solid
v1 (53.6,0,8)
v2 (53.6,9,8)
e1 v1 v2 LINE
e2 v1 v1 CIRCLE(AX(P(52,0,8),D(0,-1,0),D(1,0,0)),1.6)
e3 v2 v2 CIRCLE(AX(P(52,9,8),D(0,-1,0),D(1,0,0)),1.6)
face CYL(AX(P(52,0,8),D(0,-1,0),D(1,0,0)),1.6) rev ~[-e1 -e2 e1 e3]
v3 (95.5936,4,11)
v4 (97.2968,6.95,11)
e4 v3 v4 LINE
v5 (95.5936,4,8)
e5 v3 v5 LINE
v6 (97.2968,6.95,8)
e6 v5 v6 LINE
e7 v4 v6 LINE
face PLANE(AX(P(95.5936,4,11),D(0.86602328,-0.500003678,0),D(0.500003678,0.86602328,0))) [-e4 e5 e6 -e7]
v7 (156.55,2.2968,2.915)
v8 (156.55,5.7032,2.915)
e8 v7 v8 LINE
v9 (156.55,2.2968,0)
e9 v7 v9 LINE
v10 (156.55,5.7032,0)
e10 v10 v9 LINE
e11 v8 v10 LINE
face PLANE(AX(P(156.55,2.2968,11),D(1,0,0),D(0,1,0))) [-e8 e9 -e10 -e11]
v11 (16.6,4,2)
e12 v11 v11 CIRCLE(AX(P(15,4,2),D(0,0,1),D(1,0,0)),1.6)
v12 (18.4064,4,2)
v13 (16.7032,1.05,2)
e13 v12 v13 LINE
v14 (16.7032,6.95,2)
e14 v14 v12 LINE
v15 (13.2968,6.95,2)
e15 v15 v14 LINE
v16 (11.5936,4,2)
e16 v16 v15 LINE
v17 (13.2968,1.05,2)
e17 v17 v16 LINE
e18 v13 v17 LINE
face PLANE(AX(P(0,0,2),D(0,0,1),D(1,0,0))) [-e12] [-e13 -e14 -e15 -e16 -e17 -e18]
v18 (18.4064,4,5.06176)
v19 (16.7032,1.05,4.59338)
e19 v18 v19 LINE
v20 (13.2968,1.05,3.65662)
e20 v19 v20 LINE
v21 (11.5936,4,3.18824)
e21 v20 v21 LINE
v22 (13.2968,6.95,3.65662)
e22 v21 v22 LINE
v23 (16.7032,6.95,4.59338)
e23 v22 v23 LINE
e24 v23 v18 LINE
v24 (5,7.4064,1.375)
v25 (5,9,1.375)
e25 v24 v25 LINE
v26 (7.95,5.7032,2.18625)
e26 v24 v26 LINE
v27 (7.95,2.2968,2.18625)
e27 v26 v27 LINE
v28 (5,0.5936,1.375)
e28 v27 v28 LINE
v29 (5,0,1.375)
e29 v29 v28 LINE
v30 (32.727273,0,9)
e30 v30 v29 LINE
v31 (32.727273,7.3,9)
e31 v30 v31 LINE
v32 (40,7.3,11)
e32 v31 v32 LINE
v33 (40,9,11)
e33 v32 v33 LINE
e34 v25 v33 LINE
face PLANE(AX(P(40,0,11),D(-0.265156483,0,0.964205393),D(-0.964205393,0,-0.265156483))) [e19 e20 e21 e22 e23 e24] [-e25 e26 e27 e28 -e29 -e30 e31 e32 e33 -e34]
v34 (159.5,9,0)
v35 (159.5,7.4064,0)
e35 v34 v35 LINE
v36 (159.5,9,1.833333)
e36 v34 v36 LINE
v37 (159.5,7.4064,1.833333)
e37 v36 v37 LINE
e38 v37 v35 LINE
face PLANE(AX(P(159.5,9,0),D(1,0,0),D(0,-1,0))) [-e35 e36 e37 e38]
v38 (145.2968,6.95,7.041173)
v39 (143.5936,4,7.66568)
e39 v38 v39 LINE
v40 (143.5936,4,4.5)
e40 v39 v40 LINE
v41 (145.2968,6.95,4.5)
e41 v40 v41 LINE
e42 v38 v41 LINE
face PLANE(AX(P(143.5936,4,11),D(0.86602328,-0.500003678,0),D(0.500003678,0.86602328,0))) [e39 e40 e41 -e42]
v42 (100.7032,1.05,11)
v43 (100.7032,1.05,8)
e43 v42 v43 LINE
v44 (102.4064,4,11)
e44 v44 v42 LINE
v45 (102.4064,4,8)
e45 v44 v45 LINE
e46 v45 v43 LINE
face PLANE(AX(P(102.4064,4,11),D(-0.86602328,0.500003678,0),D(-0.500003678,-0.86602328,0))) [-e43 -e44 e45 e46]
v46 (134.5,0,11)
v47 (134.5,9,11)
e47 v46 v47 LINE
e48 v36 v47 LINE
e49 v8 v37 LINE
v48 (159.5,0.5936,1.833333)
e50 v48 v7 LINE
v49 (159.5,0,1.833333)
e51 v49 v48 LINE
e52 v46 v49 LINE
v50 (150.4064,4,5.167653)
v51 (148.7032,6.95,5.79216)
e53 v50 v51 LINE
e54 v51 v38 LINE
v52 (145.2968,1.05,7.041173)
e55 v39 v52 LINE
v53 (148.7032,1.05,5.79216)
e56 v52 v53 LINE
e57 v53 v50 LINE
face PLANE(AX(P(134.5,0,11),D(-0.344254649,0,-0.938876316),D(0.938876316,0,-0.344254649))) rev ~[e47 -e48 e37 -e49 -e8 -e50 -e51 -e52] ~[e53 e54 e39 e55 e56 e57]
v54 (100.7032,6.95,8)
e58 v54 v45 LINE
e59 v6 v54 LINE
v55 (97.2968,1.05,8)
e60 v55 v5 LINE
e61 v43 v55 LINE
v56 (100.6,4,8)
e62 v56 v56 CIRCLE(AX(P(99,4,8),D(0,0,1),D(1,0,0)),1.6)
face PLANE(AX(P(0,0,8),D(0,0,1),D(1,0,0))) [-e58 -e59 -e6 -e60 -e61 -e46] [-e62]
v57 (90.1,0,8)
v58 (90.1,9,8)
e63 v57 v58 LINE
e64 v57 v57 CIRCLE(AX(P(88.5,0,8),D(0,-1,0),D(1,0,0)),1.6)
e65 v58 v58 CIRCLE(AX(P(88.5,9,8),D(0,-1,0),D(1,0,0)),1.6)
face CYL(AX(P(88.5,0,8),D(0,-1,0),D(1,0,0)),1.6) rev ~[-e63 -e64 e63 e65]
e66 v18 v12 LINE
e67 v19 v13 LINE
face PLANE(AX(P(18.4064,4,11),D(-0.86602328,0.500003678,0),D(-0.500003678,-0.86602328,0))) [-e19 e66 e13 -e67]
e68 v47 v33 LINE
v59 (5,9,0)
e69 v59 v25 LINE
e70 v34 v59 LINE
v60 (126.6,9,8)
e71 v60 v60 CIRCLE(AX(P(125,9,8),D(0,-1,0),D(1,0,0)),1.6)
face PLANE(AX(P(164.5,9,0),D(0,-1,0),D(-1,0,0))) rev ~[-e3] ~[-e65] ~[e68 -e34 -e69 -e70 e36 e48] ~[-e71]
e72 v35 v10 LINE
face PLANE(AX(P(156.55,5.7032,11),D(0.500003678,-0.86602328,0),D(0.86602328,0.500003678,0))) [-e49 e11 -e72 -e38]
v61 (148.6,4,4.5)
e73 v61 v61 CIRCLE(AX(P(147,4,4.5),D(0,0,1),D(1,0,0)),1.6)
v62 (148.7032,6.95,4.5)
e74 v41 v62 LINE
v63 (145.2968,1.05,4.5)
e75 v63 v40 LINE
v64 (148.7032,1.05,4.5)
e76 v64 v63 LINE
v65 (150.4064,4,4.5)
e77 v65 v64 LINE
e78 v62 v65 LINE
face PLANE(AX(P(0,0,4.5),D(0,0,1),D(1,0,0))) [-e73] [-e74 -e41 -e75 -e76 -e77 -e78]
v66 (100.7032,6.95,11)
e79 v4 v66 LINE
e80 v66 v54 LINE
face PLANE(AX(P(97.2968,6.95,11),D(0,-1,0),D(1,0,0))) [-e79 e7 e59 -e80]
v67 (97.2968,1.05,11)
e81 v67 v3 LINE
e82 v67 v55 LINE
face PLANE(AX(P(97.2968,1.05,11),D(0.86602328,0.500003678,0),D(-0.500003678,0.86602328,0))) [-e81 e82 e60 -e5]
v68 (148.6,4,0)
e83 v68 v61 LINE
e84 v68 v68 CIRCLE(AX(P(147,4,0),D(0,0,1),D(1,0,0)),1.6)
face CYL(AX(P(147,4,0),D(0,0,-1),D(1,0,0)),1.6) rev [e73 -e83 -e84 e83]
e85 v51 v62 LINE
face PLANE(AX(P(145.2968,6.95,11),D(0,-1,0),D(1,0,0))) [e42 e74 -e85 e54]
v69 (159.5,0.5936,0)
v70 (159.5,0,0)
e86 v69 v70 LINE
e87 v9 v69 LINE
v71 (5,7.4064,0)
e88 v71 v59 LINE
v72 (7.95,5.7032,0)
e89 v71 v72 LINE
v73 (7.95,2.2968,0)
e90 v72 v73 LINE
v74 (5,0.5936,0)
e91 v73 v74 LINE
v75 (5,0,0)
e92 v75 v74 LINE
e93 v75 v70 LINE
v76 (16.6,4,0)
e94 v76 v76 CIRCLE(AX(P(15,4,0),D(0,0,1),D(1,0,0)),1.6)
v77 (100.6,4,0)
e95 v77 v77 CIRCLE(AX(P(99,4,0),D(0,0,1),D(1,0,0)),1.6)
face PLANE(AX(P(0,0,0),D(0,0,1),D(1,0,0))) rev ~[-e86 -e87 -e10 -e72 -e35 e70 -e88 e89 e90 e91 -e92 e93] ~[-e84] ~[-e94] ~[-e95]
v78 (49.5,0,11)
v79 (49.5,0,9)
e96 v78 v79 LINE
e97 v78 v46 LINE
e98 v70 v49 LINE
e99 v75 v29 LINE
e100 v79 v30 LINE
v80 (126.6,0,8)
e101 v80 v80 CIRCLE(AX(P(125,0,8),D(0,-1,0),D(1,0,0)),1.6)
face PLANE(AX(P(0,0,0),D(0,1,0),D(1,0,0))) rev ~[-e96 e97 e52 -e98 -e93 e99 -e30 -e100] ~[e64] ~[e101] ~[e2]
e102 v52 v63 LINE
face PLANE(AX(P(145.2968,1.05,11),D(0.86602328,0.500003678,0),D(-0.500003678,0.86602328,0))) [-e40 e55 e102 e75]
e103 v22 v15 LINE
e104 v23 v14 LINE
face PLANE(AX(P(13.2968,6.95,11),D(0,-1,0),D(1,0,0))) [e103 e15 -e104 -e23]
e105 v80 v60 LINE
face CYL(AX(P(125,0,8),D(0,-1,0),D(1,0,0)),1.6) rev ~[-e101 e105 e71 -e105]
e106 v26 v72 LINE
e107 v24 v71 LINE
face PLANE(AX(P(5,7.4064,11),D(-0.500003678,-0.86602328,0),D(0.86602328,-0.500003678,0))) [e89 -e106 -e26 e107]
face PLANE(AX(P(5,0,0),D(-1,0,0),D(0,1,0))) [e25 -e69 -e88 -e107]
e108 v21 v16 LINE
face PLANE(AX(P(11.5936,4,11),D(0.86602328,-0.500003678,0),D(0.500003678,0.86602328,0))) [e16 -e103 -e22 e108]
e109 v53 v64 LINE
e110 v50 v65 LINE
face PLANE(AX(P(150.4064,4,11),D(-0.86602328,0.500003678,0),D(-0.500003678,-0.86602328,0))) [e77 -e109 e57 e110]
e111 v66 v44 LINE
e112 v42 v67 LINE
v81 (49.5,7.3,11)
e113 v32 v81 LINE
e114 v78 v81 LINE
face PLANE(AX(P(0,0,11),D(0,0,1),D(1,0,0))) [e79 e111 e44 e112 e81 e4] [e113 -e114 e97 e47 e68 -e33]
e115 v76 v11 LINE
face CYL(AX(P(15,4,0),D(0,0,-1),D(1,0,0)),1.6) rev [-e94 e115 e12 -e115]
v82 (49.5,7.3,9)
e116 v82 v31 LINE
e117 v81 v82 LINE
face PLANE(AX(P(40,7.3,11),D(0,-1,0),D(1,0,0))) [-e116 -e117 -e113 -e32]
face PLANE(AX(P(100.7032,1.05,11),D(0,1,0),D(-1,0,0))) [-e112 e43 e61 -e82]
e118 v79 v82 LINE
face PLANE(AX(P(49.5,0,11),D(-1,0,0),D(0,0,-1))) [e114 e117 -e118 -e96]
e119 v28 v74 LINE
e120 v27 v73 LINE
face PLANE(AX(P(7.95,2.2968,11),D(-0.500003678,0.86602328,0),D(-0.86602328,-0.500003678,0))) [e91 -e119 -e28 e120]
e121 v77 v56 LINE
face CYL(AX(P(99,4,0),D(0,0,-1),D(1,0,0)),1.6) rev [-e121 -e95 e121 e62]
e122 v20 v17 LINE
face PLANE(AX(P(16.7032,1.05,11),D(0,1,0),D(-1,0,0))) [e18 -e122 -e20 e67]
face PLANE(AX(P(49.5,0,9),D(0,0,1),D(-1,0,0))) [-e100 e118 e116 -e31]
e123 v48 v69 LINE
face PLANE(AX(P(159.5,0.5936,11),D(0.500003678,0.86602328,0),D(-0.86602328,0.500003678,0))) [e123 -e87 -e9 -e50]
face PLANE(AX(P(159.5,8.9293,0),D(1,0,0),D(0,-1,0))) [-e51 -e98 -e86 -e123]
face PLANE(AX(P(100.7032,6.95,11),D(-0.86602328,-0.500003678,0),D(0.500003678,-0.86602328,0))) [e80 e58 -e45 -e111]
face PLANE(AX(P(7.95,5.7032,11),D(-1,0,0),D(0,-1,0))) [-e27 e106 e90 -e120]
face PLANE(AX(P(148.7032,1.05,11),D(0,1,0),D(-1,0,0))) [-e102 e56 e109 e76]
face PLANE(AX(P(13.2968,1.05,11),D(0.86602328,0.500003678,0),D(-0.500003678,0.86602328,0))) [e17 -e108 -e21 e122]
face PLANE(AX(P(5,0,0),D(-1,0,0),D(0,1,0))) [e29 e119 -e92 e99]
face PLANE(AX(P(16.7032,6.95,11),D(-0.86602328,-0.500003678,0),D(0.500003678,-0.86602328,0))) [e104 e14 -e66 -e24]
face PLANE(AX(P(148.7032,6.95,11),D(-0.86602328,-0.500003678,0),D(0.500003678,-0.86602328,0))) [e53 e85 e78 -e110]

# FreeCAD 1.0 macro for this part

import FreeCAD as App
import Part
import Sketcher
Q = App.Units.Quantity


def add_polygon(sketch, points):
    """Adds a closed chain of lines whose ends are joined by coincident constraints."""
    first, n = sketch.GeometryCount, len(points)
    for a, b in zip(points, points[1:] + points[:1]):
        sketch.addGeometry(Part.LineSegment(App.Vector(*a, 0), App.Vector(*b, 0)), False)
    for i in range(n):
        sketch.addConstraint(Sketcher.Constraint("Coincident", first + i, 2, first + (i + 1) % n, 1))

doc = App.newDocument("Part")
body = doc.addObject("PartDesign::Body", "Body")

# Sketch on XY plane
sketch1 = body.newObject("Sketcher::SketchObject", "Sketch")
sketch1.AttachmentSupport = (doc.getObject("XY_Plane"), [""])
sketch1.MapMode = "FlatFace"
add_polygon(sketch1, [(0, 9), (0, 0), (164.5, 0), (164.5, 9)])  # lines 0-3
sketch1.addGeometry(Part.Circle(App.Vector(5, 4, 0), App.Vector(0, 0, 1), 1.6), False)  # 4
sketch1.addGeometry(Part.Circle(App.Vector(15, 4, 0), App.Vector(0, 0, 1), 1.6), False)  # 5
sketch1.addGeometry(Part.Circle(App.Vector(99, 4, 0), App.Vector(0, 0, 1), 1.6), False)  # 6
sketch1.addGeometry(Part.Circle(App.Vector(147, 4, 0), App.Vector(0, 0, 1), 1.6), False)  # 7
sketch1.addGeometry(Part.Circle(App.Vector(159.5, 4, 0), App.Vector(0, 0, 1), 1.6), False)  # 8
sketch1.addConstraint([
    Sketcher.Constraint("Vertical", 0),
    Sketcher.Constraint("Horizontal", 1),
    Sketcher.Constraint("Vertical", 2),
    Sketcher.Constraint("Horizontal", 3),
    Sketcher.Constraint("Coincident", 0, 2, -1, 1),
    Sketcher.Constraint("Equal", 4, 5),
    Sketcher.Constraint("Equal", 5, 6),
    Sketcher.Constraint("Equal", 6, 7),
    Sketcher.Constraint("Equal", 7, 8),
    Sketcher.Constraint("Horizontal", 4, 3, 5, 3),
    Sketcher.Constraint("Horizontal", 5, 3, 6, 3),
    Sketcher.Constraint("Horizontal", 6, 3, 7, 3),
    Sketcher.Constraint("Horizontal", 7, 3, 8, 3),
    Sketcher.Constraint("Diameter", 4, Q("3.2 mm")),
    Sketcher.Constraint("DistanceY", 0, 2, 0, 1, Q("9 mm")),
    Sketcher.Constraint("DistanceX", -1, 1, 4, 3, Q("5 mm")),
    Sketcher.Constraint("DistanceY", -1, 1, 4, 3, Q("4 mm")),
    Sketcher.Constraint("DistanceX", -1, 1, 5, 3, Q("15 mm")),
    Sketcher.Constraint("DistanceX", 6, 3, 7, 3, Q("48 mm")),
    Sketcher.Constraint("DistanceX", 8, 3, 1, 2, Q("5 mm")),
    Sketcher.Constraint("DistanceX", 7, 3, 8, 3, Q("12.5 mm")),
    Sketcher.Constraint("DistanceX", 1, 1, 1, 2, Q("164.5 mm")),
])
pad1 = body.newObject("PartDesign::Pad", "Pad")
pad1.Profile = sketch1
pad1.Length = 11

# Sketch on XZ plane
sketch2 = body.newObject("Sketcher::SketchObject", "Sketch001")
sketch2.AttachmentSupport = (doc.getObject("XZ_Plane"), [""])
sketch2.MapMode = "FlatFace"
sketch2.addGeometry([
    Part.Circle(App.Vector(52, 8, 0), App.Vector(0, 0, 1), 1.6),
    Part.Circle(App.Vector(125, 8, 0), App.Vector(0, 0, 1), 1.6),
    Part.Circle(App.Vector(88.5, 8, 0), App.Vector(0, 0, 1), 1.6),
], False)
sketch2.addConstraint([
    Sketcher.Constraint("Equal", 0, 1),
    Sketcher.Constraint("Equal", 1, 2),
    Sketcher.Constraint("Horizontal", 0, 3, 1, 3),
    Sketcher.Constraint("Horizontal", 1, 3, 2, 3),
    Sketcher.Constraint("Diameter", 0, Q("3.2 mm")),
    Sketcher.Constraint("DistanceX", -1, 1, 0, 3, Q("52 mm")),
    Sketcher.Constraint("DistanceY", -1, 1, 0, 3, Q("8 mm")),
    Sketcher.Constraint("DistanceX", 0, 3, 1, 3, Q("73 mm")),
    Sketcher.Constraint("DistanceX", 0, 3, 2, 3, Q("36.5 mm")),
])
pocket1 = body.newObject("PartDesign::Pocket", "Pocket")
pocket1.Profile = sketch2
pocket1.Type = "UpToFirst"

# Sketch on XZ plane
sketch3 = body.newObject("Sketcher::SketchObject", "Sketch002")
sketch3.AttachmentSupport = (doc.getObject("XZ_Plane"), [""])
sketch3.MapMode = "FlatFace"
add_polygon(sketch3, [(40, 11), (0, 11), (0, 0)])  # lines 0-2
sketch3.addConstraint([
    Sketcher.Constraint("Horizontal", 0),
    Sketcher.Constraint("Vertical", 1),
    Sketcher.Constraint("Coincident", 1, 2, -1, 1),
    Sketcher.Constraint("DistanceX", 0, 2, 0, 1, Q("40 mm")),
    Sketcher.Constraint("DistanceY", 1, 2, 1, 1, Q("11 mm")),
])
pocket2 = body.newObject("PartDesign::Pocket", "Pocket001")
pocket2.Profile = sketch3
pocket2.Type = "UpToFirst"

# Sketch on XZ plane
sketch4 = body.newObject("Sketcher::SketchObject", "Sketch003")
sketch4.AttachmentSupport = (doc.getObject("XZ_Plane"), [""])
sketch4.MapMode = "FlatFace"
add_polygon(sketch4, [(134, 11), (164, 0), (164, 11)])  # lines 0-2
sketch4.addConstraint([
    Sketcher.Constraint("Vertical", 1),
    Sketcher.Constraint("Horizontal", 2),
    Sketcher.Constraint("PointOnObject", 0, 2, -1),
    Sketcher.Constraint("DistanceX", 2, 2, 2, 1, Q("30 mm")),
    Sketcher.Constraint("DistanceY", 1, 1, 1, 2, Q("11 mm")),
    Sketcher.Constraint("DistanceX", -1, 1, 0, 2, Q("164.5 mm")),
])
pocket3 = body.newObject("PartDesign::Pocket", "Pocket002")
pocket3.Profile = sketch4
pocket3.Type = "UpToFirst"

# Sketch on XY plane
sketch5 = body.newObject("Sketcher::SketchObject", "Sketch004")
sketch5.AttachmentSupport = (doc.getObject("XY_Plane"), [""])
sketch5.MapMode = "FlatFace"
sketch5.AttachmentOffset = App.Placement(App.Vector(0, 0, 11), App.Rotation())
add_polygon(sketch5, [(97.3, 7), (95.6, 4), (97.3, 1.1), (100.7, 1.1), (102.4, 4), (100.7, 7)])  # lines 0-5
sketch5.addGeometry(Part.Circle(App.Vector(99, 4, 0), App.Vector(0, 0, 1), 1.6), False)  # 6
sketch5.addConstraint([
    Sketcher.Constraint("Horizontal", 2),
    Sketcher.Constraint("Horizontal", 5),
    Sketcher.Constraint("Parallel", 0, 3),
    Sketcher.Constraint("Parallel", 1, 4),
    Sketcher.Constraint("Horizontal", 6, 3, 0, 2),
    Sketcher.Constraint("Horizontal", 0, 2, 3, 2),
    Sketcher.Constraint("Vertical", 2, 2, 4, 2),
    Sketcher.Constraint("Vertical", 1, 2, 5, 2),
    Sketcher.Constraint("Diameter", 6, Q("3.2 mm")),
    Sketcher.Constraint("DistanceY", 2, 2, 4, 2, Q("5.9 mm")),
    Sketcher.Constraint("Angle", 0, Q("-120.0002 deg")),
    Sketcher.Constraint("DistanceX", -1, 1, 6, 3, Q("99 mm")),
    Sketcher.Constraint("DistanceY", -1, 1, 6, 3, Q("4 mm")),
    Sketcher.Constraint("DistanceX", 2, 1, 2, 2, Q("3.4064 mm")),
    Sketcher.Constraint("DistanceX", -1, 1, 0, 2, Q("95.5936 mm")),
])
pocket4 = body.newObject("PartDesign::Pocket", "Pocket003")
pocket4.Profile = sketch5
pocket4.Length = 3

# Sketch on XY plane
sketch6 = body.newObject("Sketcher::SketchObject", "Sketch005")
sketch6.AttachmentSupport = (doc.getObject("XY_Plane"), [""])
sketch6.MapMode = "FlatFace"
sketch6.AttachmentOffset = App.Placement(App.Vector(0, 0, 11), App.Rotation())
add_polygon(sketch6, [(148.7, 1.1), (150.4, 4), (148.7, 7), (145.3, 7), (143.6, 4), (145.3, 1.1)])  # lines 0-5
sketch6.addGeometry(Part.Circle(App.Vector(147, 4, 0), App.Vector(0, 0, 1), 1.6), False)  # 6
sketch6.addConstraint([
    Sketcher.Constraint("Horizontal", 2),
    Sketcher.Constraint("Horizontal", 5),
    Sketcher.Constraint("Parallel", 0, 3),
    Sketcher.Constraint("Parallel", 1, 4),
    Sketcher.Constraint("Horizontal", 6, 3, 0, 2),
    Sketcher.Constraint("Horizontal", 0, 2, 3, 2),
    Sketcher.Constraint("Vertical", 2, 2, 4, 2),
    Sketcher.Constraint("Vertical", 1, 2, 5, 2),
    Sketcher.Constraint("Diameter", 6, Q("3.2 mm")),
    Sketcher.Constraint("DistanceY", 4, 2, 2, 2, Q("5.9 mm")),
    Sketcher.Constraint("Angle", 0, Q("59.9998 deg")),
    Sketcher.Constraint("DistanceX", -1, 1, 6, 3, Q("147 mm")),
    Sketcher.Constraint("DistanceY", -1, 1, 6, 3, Q("4 mm")),
    Sketcher.Constraint("DistanceX", 2, 2, 2, 1, Q("3.4064 mm")),
    Sketcher.Constraint("DistanceX", -1, 1, 0, 2, Q("150.4064 mm")),
])
pocket5 = body.newObject("PartDesign::Pocket", "Pocket004")
pocket5.Profile = sketch6
pocket5.Length = 6.5

# Sketch on XY plane
sketch7 = body.newObject("Sketcher::SketchObject", "Sketch006")
sketch7.AttachmentSupport = (doc.getObject("XY_Plane"), [""])
sketch7.MapMode = "FlatFace"
sketch7.AttachmentOffset = App.Placement(App.Vector(0, 0, 11), App.Rotation())
add_polygon(sketch7, [(162.4, 2.3), (162.4, 5.7), (159.5, 7.4), (156.6, 5.7), (156.6, 2.3), (159.5, 0.6)])  # lines 0-5
sketch7.addConstraint([
    Sketcher.Constraint("Vertical", 0),
    Sketcher.Constraint("Vertical", 3),
    Sketcher.Constraint("Parallel", 1, 4),
    Sketcher.Constraint("Parallel", 2, 5),
    Sketcher.Constraint("Horizontal", 0, 2, 2, 2),
    Sketcher.Constraint("Horizontal", 3, 2, 5, 2),
    Sketcher.Constraint("Vertical", 1, 2, 4, 2),
    Sketcher.Constraint("DistanceX", 2, 2, 0, 2, Q("5.9 mm")),
    Sketcher.Constraint("Angle", 1, Q("149.9998 deg")),
    Sketcher.Constraint("DistanceX", -1, 1, 1, 2, Q("159.5 mm")),
    Sketcher.Constraint("DistanceY", 0, 1, 0, 2, Q("3.4064 mm")),
    Sketcher.Constraint("DistanceY", -1, 1, 0, 2, Q("5.7032 mm")),
])
pocket6 = body.newObject("PartDesign::Pocket", "Pocket005")
pocket6.Profile = sketch7
pocket6.Length = 11

# Sketch on XY plane
sketch8 = body.newObject("Sketcher::SketchObject", "Sketch007")
sketch8.AttachmentSupport = (doc.getObject("XY_Plane"), [""])
sketch8.MapMode = "FlatFace"
sketch8.AttachmentOffset = App.Placement(App.Vector(0, 0, 11), App.Rotation())
add_polygon(sketch8, [(5, 0.6), (8, 2.3), (8, 5.7), (5, 7.4), (2, 5.7), (2, 2.3)])  # lines 0-5
sketch8.addConstraint([
    Sketcher.Constraint("Vertical", 1),
    Sketcher.Constraint("Vertical", 4),
    Sketcher.Constraint("Parallel", 0, 3),
    Sketcher.Constraint("Parallel", 2, 5),
    Sketcher.Constraint("Horizontal", 1, 2, 3, 2),
    Sketcher.Constraint("Horizontal", 0, 2, 4, 2),
    Sketcher.Constraint("Vertical", 2, 2, 5, 2),
    Sketcher.Constraint("DistanceX", 3, 2, 1, 2, Q("5.9 mm")),
    Sketcher.Constraint("Angle", 0, Q("30.0002 deg")),
    Sketcher.Constraint("DistanceX", -1, 1, 2, 2, Q("5 mm")),
    Sketcher.Constraint("DistanceY", 1, 1, 1, 2, Q("3.4064 mm")),
    Sketcher.Constraint("DistanceY", -1, 1, 0, 2, Q("2.2968 mm")),
])
pocket7 = body.newObject("PartDesign::Pocket", "Pocket006")
pocket7.Profile = sketch8
pocket7.Type = "ThroughAll"

# Sketch on XY plane
sketch9 = body.newObject("Sketcher::SketchObject", "Sketch008")
sketch9.AttachmentSupport = (doc.getObject("XY_Plane"), [""])
sketch9.MapMode = "FlatFace"
sketch9.AttachmentOffset = App.Placement(App.Vector(0, 0, 11), App.Rotation())
add_polygon(sketch9, [(16.7, 1.1), (18.4, 4), (16.7, 7), (13.3, 7), (11.6, 4), (13.3, 1.1)])  # lines 0-5
sketch9.addGeometry(Part.Circle(App.Vector(15, 4, 0), App.Vector(0, 0, 1), 1.6), False)  # 6
sketch9.addConstraint([
    Sketcher.Constraint("Horizontal", 2),
    Sketcher.Constraint("Horizontal", 5),
    Sketcher.Constraint("Parallel", 0, 3),
    Sketcher.Constraint("Parallel", 1, 4),
    Sketcher.Constraint("Horizontal", 6, 3, 0, 2),
    Sketcher.Constraint("Horizontal", 0, 2, 3, 2),
    Sketcher.Constraint("Vertical", 2, 2, 4, 2),
    Sketcher.Constraint("Vertical", 1, 2, 5, 2),
    Sketcher.Constraint("Diameter", 6, Q("3.2 mm")),
    Sketcher.Constraint("DistanceY", 4, 2, 2, 2, Q("5.9 mm")),
    Sketcher.Constraint("Angle", 0, Q("59.9998 deg")),
    Sketcher.Constraint("DistanceX", -1, 1, 6, 3, Q("15 mm")),
    Sketcher.Constraint("DistanceY", -1, 1, 6, 3, Q("4 mm")),
    Sketcher.Constraint("DistanceX", 2, 2, 2, 1, Q("3.4064 mm")),
    Sketcher.Constraint("DistanceX", -1, 1, 0, 2, Q("18.4064 mm")),
])
pocket8 = body.newObject("PartDesign::Pocket", "Pocket007")
pocket8.Profile = sketch9
pocket8.Length = 9

# Sketch on XY plane
sketch10 = body.newObject("Sketcher::SketchObject", "Sketch009")
sketch10.AttachmentSupport = (doc.getObject("XY_Plane"), [""])
sketch10.MapMode = "FlatFace"
add_polygon(sketch10, [(0, 0), (0, 10), (5, 10), (5, 0)])  # lines 0-3
sketch10.addConstraint([
    Sketcher.Constraint("Vertical", 0),
    Sketcher.Constraint("Horizontal", 1),
    Sketcher.Constraint("Vertical", 2),
    Sketcher.Constraint("Horizontal", 3),
    Sketcher.Constraint("Coincident", 3, 2, -1, 1),
    Sketcher.Constraint("DistanceX", 1, 1, 1, 2, Q("5 mm")),
    Sketcher.Constraint("DistanceY", 0, 1, 0, 2, Q("10.0042 mm")),
])
pocket9 = body.newObject("PartDesign::Pocket", "Pocket008")
pocket9.Profile = sketch10
pocket9.Length = 1.375
pocket9.Reversed = True

# Sketch on XZ plane
sketch11 = body.newObject("Sketcher::SketchObject", "Sketch010")
sketch11.AttachmentSupport = (doc.getObject("XZ_Plane"), [""])
sketch11.MapMode = "FlatFace"
add_polygon(sketch11, [(49.5, 9), (49.5, 11), (32.5, 11), (32.5, 9)])  # lines 0-3
sketch11.addConstraint([
    Sketcher.Constraint("Vertical", 0),
    Sketcher.Constraint("Horizontal", 1),
    Sketcher.Constraint("Vertical", 2),
    Sketcher.Constraint("Horizontal", 3),
    Sketcher.Constraint("DistanceX", 1, 2, 1, 1, Q("17 mm")),
    Sketcher.Constraint("DistanceY", 0, 1, 0, 2, Q("2 mm")),
    Sketcher.Constraint("DistanceY", -1, 1, 0, 2, Q("11 mm")),
    Sketcher.Constraint("DistanceX", -1, 1, 0, 2, Q("49.5 mm")),
])
pocket10 = body.newObject("PartDesign::Pocket", "Pocket009")
pocket10.Profile = sketch11
pocket10.Length = 7.3

# Sketch on XY plane
sketch12 = body.newObject("Sketcher::SketchObject", "Sketch011")
sketch12.AttachmentSupport = (doc.getObject("XY_Plane"), [""])
sketch12.MapMode = "FlatFace"
add_polygon(sketch12, [(160, 0), (160, 9), (164, 9), (164, 0)])  # lines 0-3
sketch12.addConstraint([
    Sketcher.Constraint("Vertical", 0),
    Sketcher.Constraint("Horizontal", 1),
    Sketcher.Constraint("Vertical", 2),
    Sketcher.Constraint("Horizontal", 3),
    Sketcher.Constraint("PointOnObject", 2, 2, -1),
    Sketcher.Constraint("DistanceX", 1, 1, 1, 2, Q("5 mm")),
    Sketcher.Constraint("DistanceY", 0, 1, 0, 2, Q("9 mm")),
    Sketcher.Constraint("DistanceX", -1, 1, 0, 2, Q("159.5 mm")),
])
pocket11 = body.newObject("PartDesign::Pocket", "Pocket010")
pocket11.Profile = sketch12
pocket11.Length = 1.8333
pocket11.Reversed = True

doc.recompute()
